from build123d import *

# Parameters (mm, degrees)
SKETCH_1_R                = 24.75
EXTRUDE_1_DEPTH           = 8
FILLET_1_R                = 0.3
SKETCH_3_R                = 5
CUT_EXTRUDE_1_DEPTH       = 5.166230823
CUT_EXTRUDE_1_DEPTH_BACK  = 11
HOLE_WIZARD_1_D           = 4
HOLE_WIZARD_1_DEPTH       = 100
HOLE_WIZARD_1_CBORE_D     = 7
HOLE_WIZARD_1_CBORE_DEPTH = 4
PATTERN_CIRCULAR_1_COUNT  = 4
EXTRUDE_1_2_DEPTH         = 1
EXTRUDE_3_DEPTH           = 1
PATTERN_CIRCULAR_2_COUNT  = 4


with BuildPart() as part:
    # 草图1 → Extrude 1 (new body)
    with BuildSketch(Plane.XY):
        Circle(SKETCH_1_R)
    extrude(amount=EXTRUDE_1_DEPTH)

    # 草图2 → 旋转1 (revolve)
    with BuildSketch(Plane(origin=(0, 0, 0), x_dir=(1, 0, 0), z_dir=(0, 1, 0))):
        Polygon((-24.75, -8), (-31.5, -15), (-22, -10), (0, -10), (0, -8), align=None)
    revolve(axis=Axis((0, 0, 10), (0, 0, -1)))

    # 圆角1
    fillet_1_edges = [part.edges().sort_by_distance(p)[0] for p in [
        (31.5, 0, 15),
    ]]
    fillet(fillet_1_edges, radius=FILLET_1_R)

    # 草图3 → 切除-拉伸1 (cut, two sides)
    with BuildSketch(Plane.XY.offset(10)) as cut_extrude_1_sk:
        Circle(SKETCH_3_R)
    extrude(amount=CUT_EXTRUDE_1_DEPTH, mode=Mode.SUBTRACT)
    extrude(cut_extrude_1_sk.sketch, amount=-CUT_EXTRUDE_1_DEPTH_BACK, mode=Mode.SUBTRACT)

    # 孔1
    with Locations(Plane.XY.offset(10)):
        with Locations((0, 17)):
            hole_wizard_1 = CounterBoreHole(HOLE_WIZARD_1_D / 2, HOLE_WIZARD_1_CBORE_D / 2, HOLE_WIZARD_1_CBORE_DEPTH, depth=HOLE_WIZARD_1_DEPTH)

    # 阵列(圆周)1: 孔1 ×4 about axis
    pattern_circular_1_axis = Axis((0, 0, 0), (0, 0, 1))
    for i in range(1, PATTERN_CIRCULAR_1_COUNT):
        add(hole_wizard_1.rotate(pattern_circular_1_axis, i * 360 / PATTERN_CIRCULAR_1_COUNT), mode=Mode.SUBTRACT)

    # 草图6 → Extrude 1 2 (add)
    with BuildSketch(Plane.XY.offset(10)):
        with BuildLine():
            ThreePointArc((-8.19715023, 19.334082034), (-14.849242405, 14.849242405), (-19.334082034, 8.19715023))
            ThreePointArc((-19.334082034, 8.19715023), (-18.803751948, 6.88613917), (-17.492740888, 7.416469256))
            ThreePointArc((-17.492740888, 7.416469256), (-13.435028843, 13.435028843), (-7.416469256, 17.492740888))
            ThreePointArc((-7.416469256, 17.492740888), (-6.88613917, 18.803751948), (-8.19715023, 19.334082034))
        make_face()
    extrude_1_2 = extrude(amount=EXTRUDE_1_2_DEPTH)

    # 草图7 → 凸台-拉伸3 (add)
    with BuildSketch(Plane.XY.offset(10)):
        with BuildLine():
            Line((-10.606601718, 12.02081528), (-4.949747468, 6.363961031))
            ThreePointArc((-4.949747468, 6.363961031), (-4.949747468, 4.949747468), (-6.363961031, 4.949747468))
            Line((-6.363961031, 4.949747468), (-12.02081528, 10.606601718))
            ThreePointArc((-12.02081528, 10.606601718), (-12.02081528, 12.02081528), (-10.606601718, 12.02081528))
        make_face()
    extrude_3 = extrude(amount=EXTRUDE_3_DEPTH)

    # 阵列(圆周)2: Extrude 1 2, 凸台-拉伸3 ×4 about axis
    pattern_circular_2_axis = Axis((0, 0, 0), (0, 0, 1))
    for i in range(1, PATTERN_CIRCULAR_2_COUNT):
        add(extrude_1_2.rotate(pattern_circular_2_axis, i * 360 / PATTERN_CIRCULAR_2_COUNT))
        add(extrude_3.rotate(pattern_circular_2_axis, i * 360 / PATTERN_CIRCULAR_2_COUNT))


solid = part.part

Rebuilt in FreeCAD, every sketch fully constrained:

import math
import FreeCAD as App
import Part
import Sketcher
from FreeCAD import Vector
Q = App.Units.Quantity


def edges_at(feature, points):
    """Names of the edges that pass closest to the given points."""
    edges = feature.Shape.Edges
    near = lambda p: min(range(len(edges)), key=lambda i: edges[i].distToShape(Part.Vertex(*p))[0])
    return sorted({f"Edge{near(p) + 1}" for p in points})

doc = App.newDocument("Part")
params = doc.addObject("Spreadsheet::Sheet", "Params")
for row, (alias, value) in enumerate([
    ("sketch1_diameter", "49.5 mm"),
    ("pad1_length", "8 mm"),
    ("sketch2_width", "22 mm"),
    ("sketch2_height", "2 mm"),
    ("sketch2_width2", "24.75 mm"),
    ("revolution_angle", "360 deg"),
    ("fillet_radius", "0.3 mm"),
    ("sketch3_diameter", "10 mm"),
    ("sketch4_diameter", "4 mm"),
    ("hole_diameter", "4 mm"),
    ("hole_depth", "100 mm"),
    ("hole_cbore_diameter", "7 mm"),
    ("hole_cbore_depth", "4 mm"),
    ("sketch5_radius", "21 mm"),
    ("sketch5_radius2", "1 mm"),
    ("pad2_length", "1 mm"),
    ("sketch6_radius", "1 mm"),
    ("sketch6_length", "8 mm"),
    ("pad3_length", "1 mm"),
], start=1):
    params.set(f"A{row}", alias)
    params.set(f"B{row}", "=" + value)
    params.setAlias(f"B{row}", alias)

body = doc.addObject("PartDesign::Body", "Body")

# Sketch on XY plane
sketch1 = body.newObject("Sketcher::SketchObject", "Sketch")
sketch1.AttachmentSupport = (doc.getObject("XY_Plane"), [""])
sketch1.MapMode = "FlatFace"
sketch1.addGeometry(Part.Circle(Vector(0, 0, 0), Vector(0, 0, 1), 25), False)
sketch1.addConstraint(Sketcher.Constraint("Coincident", 0, 3, -1, 1))
sketch1.addConstraint(Sketcher.Constraint("Diameter", 0, 49.5))
sketch1.setExpression("Constraints[1]", "Params.sketch1_diameter")
pad1 = body.newObject("PartDesign::Pad", "Pad")
pad1.Profile = sketch1
pad1.setExpression("Length", "Params.pad1_length")

# Sketch on XZ plane
sketch2 = body.newObject("Sketcher::SketchObject", "Sketch001")
sketch2.AttachmentSupport = (doc.getObject("XZ_Plane"), [""])
sketch2.MapMode = "FlatFace"
sketch2.addGeometry(Part.LineSegment(Vector(-24.8, 8, 0), Vector(-31.5, 15, 0)), False)
sketch2.addGeometry(Part.LineSegment(Vector(-31.5, 15, 0), Vector(-22, 10, 0)), False)
sketch2.addGeometry(Part.LineSegment(Vector(-22, 10, 0), Vector(0, 10, 0)), False)
sketch2.addGeometry(Part.LineSegment(Vector(0, 10, 0), Vector(0, 8, 0)), False)
sketch2.addGeometry(Part.LineSegment(Vector(0, 8, 0), Vector(-24.8, 8, 0)), False)
sketch2.addConstraint(Sketcher.Constraint("Coincident", 0, 2, 1, 1))
sketch2.addConstraint(Sketcher.Constraint("Coincident", 1, 2, 2, 1))
sketch2.addConstraint(Sketcher.Constraint("Coincident", 2, 2, 3, 1))
sketch2.addConstraint(Sketcher.Constraint("Coincident", 3, 2, 4, 1))
sketch2.addConstraint(Sketcher.Constraint("Coincident", 4, 2, 0, 1))
sketch2.addConstraint(Sketcher.Constraint("Horizontal", 2))
sketch2.addConstraint(Sketcher.Constraint("Vertical", 3))
sketch2.addConstraint(Sketcher.Constraint("Horizontal", 4))
sketch2.addConstraint(Sketcher.Constraint("PointOnObject", 2, 2, -2))
sketch2.addConstraint(Sketcher.Constraint("DistanceX", 2, 1, 2, 2, 22.0))
sketch2.addConstraint(Sketcher.Constraint("DistanceY", 3, 2, 3, 1, 2.0))
sketch2.addConstraint(Sketcher.Constraint("DistanceY", -1, 1, 0, 2, 15.0))
sketch2.addConstraint(Sketcher.Constraint("DistanceY", -1, 1, 1, 2, 10.0))
sketch2.addConstraint(Sketcher.Constraint("DistanceX", 4, 2, 4, 1, 24.75))
sketch2.addConstraint(Sketcher.Constraint("DistanceX", 0, 2, -1, 1, 31.5))
sketch2.setExpression("Constraints[9]", "Params.sketch2_width")
sketch2.setExpression("Constraints[10]", "Params.sketch2_height")
sketch2.setExpression("Constraints[13]", "Params.sketch2_width2")
revolution = body.newObject("PartDesign::Revolution", "Revolution")
revolution.Profile = sketch2
revolution.ReferenceAxis = (sketch2, ["V_Axis"])
revolution.setExpression("Angle", "Params.revolution_angle")
doc.recompute()

fillet = body.newObject("PartDesign::Fillet", "Fillet")
fillet.Base = (revolution, edges_at(revolution, [(31.5, 0, 15)]))
fillet.setExpression("Radius", "Params.fillet_radius")

# Sketch on XY plane
sketch3 = body.newObject("Sketcher::SketchObject", "Sketch002")
sketch3.AttachmentSupport = (doc.getObject("XY_Plane"), [""])
sketch3.MapMode = "FlatFace"
sketch3.AttachmentOffset = App.Placement(Vector(0, 0, 10), App.Rotation())
sketch3.addGeometry(Part.Circle(Vector(0, 0, 0), Vector(0, 0, 1), 5), False)
sketch3.addConstraint(Sketcher.Constraint("Coincident", 0, 3, -1, 1))
sketch3.addConstraint(Sketcher.Constraint("Diameter", 0, 10.0))
sketch3.setExpression("Constraints[1]", "Params.sketch3_diameter")
pocket1 = body.newObject("PartDesign::Pocket", "Pocket")
pocket1.Profile = sketch3
pocket1.Type = "ThroughAll"
pocket1.Midplane = True

# Sketch on XY plane
sketch4 = body.newObject("Sketcher::SketchObject", "Sketch003")
sketch4.AttachmentSupport = (doc.getObject("XY_Plane"), [""])
sketch4.MapMode = "FlatFace"
sketch4.AttachmentOffset = App.Placement(Vector(0, 0, 10), App.Rotation())
sketch4.addGeometry(Part.Circle(Vector(0, 17, 0), Vector(0, 0, 1), 2), False)
sketch4.addConstraint(Sketcher.Constraint("PointOnObject", 0, 3, -2))
sketch4.addConstraint(Sketcher.Constraint("Diameter", 0, 4.0))
sketch4.addConstraint(Sketcher.Constraint("DistanceY", -1, 1, 0, 3, 17.0))
sketch4.setExpression("Constraints[1]", "Params.sketch4_diameter")
doc.recompute()
hole = body.newObject("PartDesign::Hole", "Hole")
hole.Profile = sketch4
hole.ThreadType = "None"
hole.setExpression("Diameter", "Params.hole_diameter")
hole.DepthType = "Dimension"
hole.setExpression("Depth", "Params.hole_depth")
hole.DrillPoint = "Flat"
hole.HoleCutType = "Counterbore"
hole.setExpression("HoleCutDiameter", "Params.hole_cbore_diameter")
hole.setExpression("HoleCutDepth", "Params.hole_cbore_depth")
doc.recompute()

polarpattern = body.newObject("PartDesign::PolarPattern", "PolarPattern")
polarpattern.Originals = [hole]
polarpattern.Axis = (doc.getObject("Z_Axis"), [""])
polarpattern.Angle = 360
polarpattern.Occurrences = 4
body.Tip = polarpattern

# Sketch on XY plane
sketch5 = body.newObject("Sketcher::SketchObject", "Sketch004")
sketch5.AttachmentSupport = (doc.getObject("XY_Plane"), [""])
sketch5.MapMode = "FlatFace"
sketch5.AttachmentOffset = App.Placement(Vector(0, 0, 10), App.Rotation())
sketch5.addGeometry(Part.ArcOfCircle(Part.Circle(Vector(0, 0, 0), Vector(0, 0, 1), 21), math.radians(113), math.radians(157)), False)
sketch5.addGeometry(Part.ArcOfCircle(Part.Circle(Vector(-18.4, 7.8, 0), Vector(0, 0, 1), 1), math.radians(157), math.radians(337)), False)
sketch5.addGeometry(Part.ArcOfCircle(Part.Circle(Vector(0, 0, 0), Vector(0, 0, 1), 19), math.radians(113), math.radians(157)), False)
sketch5.addGeometry(Part.ArcOfCircle(Part.Circle(Vector(-7.8, 18.4, 0), Vector(0, 0, 1), 1), math.radians(-67), math.radians(113)), False)
sketch5.addConstraint(Sketcher.Constraint("Tangent", 0, 2, 1, 1))
sketch5.addConstraint(Sketcher.Constraint("Tangent", 1, 2, 2, 2))
sketch5.addConstraint(Sketcher.Constraint("Tangent", 2, 1, 3, 1))
sketch5.addConstraint(Sketcher.Constraint("Tangent", 3, 2, 0, 1))
sketch5.addConstraint(Sketcher.Constraint("Coincident", 0, 3, -1, 1))
sketch5.addConstraint(Sketcher.Constraint("Coincident", 2, 3, -1, 1))
sketch5.addConstraint(Sketcher.Constraint("Radius", 0, 21.0))
sketch5.addConstraint(Sketcher.Constraint("Radius", 1, 1.0))
sketch5.addConstraint(Sketcher.Constraint("DistanceX", 1, 3, 3, 3, 10.606602))
sketch5.addConstraint(Sketcher.Constraint("DistanceY", 1, 3, 3, 3, 10.606602))
sketch5.setExpression("Constraints[6]", "Params.sketch5_radius")
sketch5.setExpression("Constraints[7]", "Params.sketch5_radius2")
pad2 = body.newObject("PartDesign::Pad", "Pad001")
pad2.Profile = sketch5
pad2.setExpression("Length", "Params.pad2_length")

# Sketch on XY plane
sketch6 = body.newObject("Sketcher::SketchObject", "Sketch005")
sketch6.AttachmentSupport = (doc.getObject("XY_Plane"), [""])
sketch6.MapMode = "FlatFace"
sketch6.AttachmentOffset = App.Placement(Vector(0, 0, 10), App.Rotation())
sketch6.addGeometry(Part.LineSegment(Vector(-4.9, 6.4, 0), Vector(-10.6, 12, 0)), False)
sketch6.addGeometry(Part.ArcOfCircle(Part.Circle(Vector(-11.3, 11.3, 0), Vector(0, 0, 1), 1), math.radians(45), math.radians(225)), False)
sketch6.addGeometry(Part.LineSegment(Vector(-12, 10.6, 0), Vector(-6.4, 4.9, 0)), False)
sketch6.addGeometry(Part.ArcOfCircle(Part.Circle(Vector(-5.7, 5.7, 0), Vector(0, 0, 1), 1), math.radians(-135), math.radians(45)), False)
sketch6.addConstraint(Sketcher.Constraint("Tangent", 0, 2, 1, 1))
sketch6.addConstraint(Sketcher.Constraint("Tangent", 1, 2, 2, 1))
sketch6.addConstraint(Sketcher.Constraint("Tangent", 2, 2, 3, 1))
sketch6.addConstraint(Sketcher.Constraint("Tangent", 3, 2, 0, 1))
sketch6.addConstraint(Sketcher.Constraint("Equal", 1, 3))
sketch6.addConstraint(Sketcher.Constraint("Radius", 1, 1.0))
sketch6.addConstraint(Sketcher.Constraint("Angle", 0, Q("135 deg")))
sketch6.addConstraint(Sketcher.Constraint("Distance", 0, 8.0))
sketch6.addConstraint(Sketcher.Constraint("DistanceX", 0, 2, -1, 1, 10.606602))
sketch6.addConstraint(Sketcher.Constraint("DistanceY", -1, 1, 1, 2, 10.606602))
sketch6.setExpression("Constraints[5]", "Params.sketch6_radius")
sketch6.setExpression("Constraints[7]", "Params.sketch6_length")
pad3 = body.newObject("PartDesign::Pad", "Pad002")
pad3.Profile = sketch6
pad3.setExpression("Length", "Params.pad3_length")
doc.recompute()

polarpattern2 = body.newObject("PartDesign::PolarPattern", "PolarPattern001")
polarpattern2.Originals = [pad2, pad3]
polarpattern2.Axis = (doc.getObject("Z_Axis"), [""])
polarpattern2.Angle = 360
polarpattern2.Occurrences = 4
body.Tip = polarpattern2

doc.recompute()
